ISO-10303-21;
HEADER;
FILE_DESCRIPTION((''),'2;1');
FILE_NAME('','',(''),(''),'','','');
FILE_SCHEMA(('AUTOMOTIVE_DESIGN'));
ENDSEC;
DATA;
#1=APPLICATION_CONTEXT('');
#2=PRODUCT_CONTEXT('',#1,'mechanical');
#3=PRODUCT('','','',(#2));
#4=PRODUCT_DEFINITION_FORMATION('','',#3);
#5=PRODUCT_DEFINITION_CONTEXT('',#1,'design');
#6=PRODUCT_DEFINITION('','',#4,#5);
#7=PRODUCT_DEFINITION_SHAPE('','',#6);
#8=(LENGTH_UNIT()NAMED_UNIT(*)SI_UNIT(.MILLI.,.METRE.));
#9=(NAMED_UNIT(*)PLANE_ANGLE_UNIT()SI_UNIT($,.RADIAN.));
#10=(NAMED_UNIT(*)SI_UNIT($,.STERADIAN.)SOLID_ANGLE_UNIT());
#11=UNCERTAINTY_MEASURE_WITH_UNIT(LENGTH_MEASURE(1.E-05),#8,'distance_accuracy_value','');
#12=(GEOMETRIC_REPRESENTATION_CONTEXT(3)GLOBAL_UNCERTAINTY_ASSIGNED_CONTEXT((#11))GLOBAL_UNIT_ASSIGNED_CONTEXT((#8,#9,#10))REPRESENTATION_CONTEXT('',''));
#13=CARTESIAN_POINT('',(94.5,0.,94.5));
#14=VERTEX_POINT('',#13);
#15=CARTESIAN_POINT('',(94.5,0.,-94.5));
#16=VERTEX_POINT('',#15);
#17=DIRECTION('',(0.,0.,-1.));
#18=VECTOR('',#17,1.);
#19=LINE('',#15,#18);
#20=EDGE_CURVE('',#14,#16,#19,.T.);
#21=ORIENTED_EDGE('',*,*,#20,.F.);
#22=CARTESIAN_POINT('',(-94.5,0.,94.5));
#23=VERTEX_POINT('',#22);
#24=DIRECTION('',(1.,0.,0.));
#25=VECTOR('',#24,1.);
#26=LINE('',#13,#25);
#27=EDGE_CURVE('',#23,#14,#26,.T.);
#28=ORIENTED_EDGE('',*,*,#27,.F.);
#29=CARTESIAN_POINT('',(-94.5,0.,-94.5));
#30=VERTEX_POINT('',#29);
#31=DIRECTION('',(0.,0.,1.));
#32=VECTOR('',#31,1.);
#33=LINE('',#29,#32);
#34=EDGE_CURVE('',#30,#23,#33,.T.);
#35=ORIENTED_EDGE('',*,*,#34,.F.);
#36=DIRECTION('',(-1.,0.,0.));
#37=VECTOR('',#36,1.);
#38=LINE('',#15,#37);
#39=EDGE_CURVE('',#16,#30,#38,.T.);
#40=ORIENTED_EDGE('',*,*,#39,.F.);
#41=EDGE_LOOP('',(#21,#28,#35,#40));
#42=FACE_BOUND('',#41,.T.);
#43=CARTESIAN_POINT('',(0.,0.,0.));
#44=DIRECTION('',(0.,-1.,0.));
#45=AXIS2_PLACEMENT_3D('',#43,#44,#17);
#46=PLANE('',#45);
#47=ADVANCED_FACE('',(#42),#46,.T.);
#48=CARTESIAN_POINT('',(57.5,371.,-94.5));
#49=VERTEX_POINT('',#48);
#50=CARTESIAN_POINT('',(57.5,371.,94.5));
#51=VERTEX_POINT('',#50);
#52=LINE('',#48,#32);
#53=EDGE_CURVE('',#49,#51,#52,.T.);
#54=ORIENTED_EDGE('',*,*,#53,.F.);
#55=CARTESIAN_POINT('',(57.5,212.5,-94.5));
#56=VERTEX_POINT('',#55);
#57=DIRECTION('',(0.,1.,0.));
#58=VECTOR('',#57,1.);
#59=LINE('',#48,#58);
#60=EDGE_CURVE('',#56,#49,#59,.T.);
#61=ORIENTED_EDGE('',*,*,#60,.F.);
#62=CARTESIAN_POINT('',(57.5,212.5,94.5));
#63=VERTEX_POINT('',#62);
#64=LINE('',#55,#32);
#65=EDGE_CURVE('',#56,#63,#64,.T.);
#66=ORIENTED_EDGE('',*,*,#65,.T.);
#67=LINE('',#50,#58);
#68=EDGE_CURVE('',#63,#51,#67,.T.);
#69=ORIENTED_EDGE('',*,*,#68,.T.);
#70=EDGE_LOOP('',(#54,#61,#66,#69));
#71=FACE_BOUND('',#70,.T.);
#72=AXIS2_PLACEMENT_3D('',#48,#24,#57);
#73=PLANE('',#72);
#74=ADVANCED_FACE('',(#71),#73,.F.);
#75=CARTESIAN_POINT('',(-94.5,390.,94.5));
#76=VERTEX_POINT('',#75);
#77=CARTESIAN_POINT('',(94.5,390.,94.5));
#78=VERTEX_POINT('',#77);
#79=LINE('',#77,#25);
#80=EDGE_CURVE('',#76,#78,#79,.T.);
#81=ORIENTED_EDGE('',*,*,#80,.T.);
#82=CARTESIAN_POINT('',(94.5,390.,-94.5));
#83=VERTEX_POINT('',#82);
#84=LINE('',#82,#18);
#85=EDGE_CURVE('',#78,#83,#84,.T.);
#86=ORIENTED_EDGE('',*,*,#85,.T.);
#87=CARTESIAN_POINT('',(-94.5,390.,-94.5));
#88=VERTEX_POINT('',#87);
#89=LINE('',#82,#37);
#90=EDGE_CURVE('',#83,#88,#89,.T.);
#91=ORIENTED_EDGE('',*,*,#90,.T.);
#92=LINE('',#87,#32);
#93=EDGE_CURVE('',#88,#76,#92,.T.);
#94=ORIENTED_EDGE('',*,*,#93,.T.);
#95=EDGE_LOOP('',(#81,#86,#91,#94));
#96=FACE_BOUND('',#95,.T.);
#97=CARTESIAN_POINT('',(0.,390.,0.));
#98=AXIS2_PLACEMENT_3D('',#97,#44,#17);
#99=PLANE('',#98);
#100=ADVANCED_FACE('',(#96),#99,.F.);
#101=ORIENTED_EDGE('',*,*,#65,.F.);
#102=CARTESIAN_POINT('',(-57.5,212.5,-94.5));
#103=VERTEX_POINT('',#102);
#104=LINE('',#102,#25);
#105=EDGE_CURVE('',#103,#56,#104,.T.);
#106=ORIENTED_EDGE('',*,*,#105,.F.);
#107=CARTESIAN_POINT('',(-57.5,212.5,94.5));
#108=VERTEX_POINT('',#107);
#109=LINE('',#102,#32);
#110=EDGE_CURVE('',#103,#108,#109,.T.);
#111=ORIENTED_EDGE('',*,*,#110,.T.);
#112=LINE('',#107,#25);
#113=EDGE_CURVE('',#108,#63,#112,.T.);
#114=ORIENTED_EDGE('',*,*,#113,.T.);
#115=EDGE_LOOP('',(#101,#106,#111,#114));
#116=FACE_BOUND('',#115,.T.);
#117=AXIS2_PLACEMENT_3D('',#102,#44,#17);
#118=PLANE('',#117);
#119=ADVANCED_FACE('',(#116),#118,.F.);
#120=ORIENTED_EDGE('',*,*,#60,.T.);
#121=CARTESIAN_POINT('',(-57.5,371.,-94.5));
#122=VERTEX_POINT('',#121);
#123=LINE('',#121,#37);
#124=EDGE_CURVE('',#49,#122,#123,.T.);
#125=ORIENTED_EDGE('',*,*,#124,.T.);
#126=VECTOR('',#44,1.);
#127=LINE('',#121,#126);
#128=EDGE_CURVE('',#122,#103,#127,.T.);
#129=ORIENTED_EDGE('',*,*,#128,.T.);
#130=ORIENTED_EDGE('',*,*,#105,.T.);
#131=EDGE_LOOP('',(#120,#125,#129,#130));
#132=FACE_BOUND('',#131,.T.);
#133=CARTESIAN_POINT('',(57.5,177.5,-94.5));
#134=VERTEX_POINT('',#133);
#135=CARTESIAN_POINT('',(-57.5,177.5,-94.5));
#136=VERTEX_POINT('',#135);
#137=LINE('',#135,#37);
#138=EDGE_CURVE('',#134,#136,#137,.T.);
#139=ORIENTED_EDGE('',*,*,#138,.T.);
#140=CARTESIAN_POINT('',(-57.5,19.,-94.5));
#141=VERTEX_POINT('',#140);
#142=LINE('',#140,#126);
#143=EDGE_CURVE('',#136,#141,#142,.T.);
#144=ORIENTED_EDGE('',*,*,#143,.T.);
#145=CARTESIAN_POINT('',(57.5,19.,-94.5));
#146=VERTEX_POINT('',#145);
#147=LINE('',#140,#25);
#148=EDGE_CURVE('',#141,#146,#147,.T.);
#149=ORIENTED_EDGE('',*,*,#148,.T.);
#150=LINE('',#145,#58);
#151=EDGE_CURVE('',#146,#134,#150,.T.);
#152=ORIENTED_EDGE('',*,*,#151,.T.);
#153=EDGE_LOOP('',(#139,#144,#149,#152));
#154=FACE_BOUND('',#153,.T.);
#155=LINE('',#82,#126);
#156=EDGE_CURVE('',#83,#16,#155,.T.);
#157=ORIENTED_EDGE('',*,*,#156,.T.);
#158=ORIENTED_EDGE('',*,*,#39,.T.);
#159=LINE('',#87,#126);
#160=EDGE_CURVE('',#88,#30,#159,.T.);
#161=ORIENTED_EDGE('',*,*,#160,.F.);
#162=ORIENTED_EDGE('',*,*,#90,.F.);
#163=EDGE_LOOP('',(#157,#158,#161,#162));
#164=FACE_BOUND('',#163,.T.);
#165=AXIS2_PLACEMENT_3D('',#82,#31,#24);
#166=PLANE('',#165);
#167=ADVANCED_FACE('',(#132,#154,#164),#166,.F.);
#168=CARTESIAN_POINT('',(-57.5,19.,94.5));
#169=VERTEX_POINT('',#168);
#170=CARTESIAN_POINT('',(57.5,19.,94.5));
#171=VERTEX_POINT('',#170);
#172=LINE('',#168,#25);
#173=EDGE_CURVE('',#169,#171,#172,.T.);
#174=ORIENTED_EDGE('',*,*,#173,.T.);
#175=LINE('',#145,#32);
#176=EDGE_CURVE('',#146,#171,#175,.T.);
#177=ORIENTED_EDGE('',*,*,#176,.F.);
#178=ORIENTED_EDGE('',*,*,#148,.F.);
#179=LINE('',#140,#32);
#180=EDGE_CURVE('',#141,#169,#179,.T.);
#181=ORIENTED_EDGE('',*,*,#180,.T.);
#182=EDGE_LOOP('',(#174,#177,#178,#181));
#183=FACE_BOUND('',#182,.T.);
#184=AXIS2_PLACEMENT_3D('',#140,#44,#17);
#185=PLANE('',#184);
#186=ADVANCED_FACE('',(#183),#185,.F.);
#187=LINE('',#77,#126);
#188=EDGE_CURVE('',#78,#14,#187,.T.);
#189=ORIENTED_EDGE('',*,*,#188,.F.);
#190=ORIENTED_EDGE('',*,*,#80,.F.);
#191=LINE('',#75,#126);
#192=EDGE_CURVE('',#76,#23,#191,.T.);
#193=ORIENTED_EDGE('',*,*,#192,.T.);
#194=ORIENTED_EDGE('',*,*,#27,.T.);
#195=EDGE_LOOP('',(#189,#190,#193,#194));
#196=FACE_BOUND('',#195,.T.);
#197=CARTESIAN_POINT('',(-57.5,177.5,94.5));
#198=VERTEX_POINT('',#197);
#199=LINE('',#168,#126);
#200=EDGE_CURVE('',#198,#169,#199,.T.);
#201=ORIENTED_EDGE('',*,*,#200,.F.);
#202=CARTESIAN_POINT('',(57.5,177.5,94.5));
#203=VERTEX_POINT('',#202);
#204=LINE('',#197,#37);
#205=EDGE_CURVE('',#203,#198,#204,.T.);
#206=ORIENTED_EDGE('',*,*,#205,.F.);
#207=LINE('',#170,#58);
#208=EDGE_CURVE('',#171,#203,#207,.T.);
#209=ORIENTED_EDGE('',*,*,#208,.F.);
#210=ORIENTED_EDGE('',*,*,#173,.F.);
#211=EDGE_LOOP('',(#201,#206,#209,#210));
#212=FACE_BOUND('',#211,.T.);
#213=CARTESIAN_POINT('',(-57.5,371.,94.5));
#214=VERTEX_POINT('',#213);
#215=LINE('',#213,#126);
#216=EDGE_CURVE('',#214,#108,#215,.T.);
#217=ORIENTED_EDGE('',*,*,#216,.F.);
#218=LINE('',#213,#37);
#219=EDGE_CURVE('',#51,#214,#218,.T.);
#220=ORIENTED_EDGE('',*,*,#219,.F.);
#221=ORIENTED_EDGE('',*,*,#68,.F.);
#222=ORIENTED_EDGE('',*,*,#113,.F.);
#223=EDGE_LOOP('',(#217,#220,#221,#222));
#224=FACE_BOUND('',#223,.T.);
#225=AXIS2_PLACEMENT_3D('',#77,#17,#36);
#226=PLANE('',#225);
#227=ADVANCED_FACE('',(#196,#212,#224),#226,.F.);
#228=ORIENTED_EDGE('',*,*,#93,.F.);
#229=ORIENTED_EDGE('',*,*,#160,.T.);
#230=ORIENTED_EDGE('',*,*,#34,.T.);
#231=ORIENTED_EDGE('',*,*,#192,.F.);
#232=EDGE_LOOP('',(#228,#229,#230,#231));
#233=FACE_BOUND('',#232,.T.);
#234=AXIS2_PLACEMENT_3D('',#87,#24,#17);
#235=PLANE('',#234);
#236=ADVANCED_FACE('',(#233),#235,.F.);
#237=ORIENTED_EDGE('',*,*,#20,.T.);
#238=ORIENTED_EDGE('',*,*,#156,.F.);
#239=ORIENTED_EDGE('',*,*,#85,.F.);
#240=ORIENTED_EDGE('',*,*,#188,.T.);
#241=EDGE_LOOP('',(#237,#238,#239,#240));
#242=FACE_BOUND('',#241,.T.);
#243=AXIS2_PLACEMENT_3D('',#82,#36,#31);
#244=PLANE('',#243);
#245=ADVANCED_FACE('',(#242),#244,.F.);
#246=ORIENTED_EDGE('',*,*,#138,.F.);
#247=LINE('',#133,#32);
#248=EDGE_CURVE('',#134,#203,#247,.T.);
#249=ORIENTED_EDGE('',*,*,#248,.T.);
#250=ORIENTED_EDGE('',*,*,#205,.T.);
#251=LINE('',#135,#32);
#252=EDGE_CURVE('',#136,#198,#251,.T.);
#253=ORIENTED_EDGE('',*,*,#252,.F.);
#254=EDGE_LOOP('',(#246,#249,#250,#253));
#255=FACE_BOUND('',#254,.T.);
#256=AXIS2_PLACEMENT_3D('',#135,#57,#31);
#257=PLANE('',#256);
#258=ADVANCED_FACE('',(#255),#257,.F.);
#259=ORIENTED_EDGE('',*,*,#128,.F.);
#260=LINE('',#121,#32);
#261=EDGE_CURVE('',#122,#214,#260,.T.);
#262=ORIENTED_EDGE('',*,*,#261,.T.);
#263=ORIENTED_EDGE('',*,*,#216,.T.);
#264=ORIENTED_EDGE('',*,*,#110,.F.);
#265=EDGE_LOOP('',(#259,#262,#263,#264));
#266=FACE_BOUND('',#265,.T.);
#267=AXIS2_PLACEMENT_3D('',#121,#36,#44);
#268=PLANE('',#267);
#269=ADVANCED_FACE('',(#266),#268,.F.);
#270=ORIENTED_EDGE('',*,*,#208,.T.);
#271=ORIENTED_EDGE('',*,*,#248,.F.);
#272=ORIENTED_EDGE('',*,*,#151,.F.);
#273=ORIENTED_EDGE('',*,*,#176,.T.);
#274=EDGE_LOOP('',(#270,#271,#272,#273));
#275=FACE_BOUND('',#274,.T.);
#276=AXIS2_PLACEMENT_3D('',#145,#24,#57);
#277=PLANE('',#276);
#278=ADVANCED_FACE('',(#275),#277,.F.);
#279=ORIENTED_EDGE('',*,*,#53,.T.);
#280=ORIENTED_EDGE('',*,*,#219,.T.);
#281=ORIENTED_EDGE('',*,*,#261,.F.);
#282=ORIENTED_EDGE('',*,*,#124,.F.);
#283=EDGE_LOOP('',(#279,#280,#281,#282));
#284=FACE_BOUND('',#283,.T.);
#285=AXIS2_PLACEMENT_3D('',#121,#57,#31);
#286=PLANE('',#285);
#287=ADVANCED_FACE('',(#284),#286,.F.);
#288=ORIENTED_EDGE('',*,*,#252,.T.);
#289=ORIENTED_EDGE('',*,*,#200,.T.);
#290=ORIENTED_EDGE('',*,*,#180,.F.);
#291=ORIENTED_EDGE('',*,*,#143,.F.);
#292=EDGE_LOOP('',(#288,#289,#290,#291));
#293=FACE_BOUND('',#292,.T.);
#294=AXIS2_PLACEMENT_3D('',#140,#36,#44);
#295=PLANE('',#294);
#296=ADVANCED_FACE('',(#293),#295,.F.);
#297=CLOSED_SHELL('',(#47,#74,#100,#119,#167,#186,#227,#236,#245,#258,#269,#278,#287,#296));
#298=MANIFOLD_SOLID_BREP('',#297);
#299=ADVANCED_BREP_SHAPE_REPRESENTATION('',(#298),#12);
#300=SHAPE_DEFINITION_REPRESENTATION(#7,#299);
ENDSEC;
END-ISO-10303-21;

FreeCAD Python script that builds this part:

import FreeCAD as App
import Part
import Sketcher

V = App.Vector
Q = App.Units.Quantity


def add_polygon(sketch, points):
    """Adds a closed chain of lines whose ends are joined by coincident constraints."""
    first, n = sketch.GeometryCount, len(points)
    for a, b in zip(points, points[1:] + points[:1]):
        sketch.addGeometry(Part.LineSegment(App.Vector(*a, 0), App.Vector(*b, 0)), False)
    for i in range(n):
        sketch.addConstraint(Sketcher.Constraint("Coincident", first + i, 2, first + (i + 1) % n, 1))

doc = App.newDocument("Part")
body = doc.addObject("PartDesign::Body", "Body")

# Sketch on XZ plane
sketch1 = doc.addObject("Sketcher::SketchObject", "Sketch")
body.addObject(sketch1)
sketch1.AttachmentSupport = (doc.XZ_Plane, [""])
sketch1.MapMode = "FlatFace"
add_polygon(sketch1, [(-94, -94), (-94, 94), (94, 94), (94, -94)])  # lines 0-3
sketch1.addConstraint([
    Sketcher.Constraint("Vertical", 0),
    Sketcher.Constraint("Horizontal", 1),
    Sketcher.Constraint("Vertical", 2),
    Sketcher.Constraint("Horizontal", 3),
    Sketcher.Constraint("Symmetric", 0, 2, 2, 2, -1, 1),
    Sketcher.Constraint("Equal", 3, 0),
    Sketcher.Constraint("DistanceX", 1, 1, 1, 2, Q("189 mm")),
])
pad1 = doc.addObject("PartDesign::Pad", "Pad")
body.addObject(pad1)
pad1.Profile = sketch1
pad1.Length = 390
pad1.Reversed = True

# Sketch on XY plane
sketch2 = doc.addObject("Sketcher::SketchObject", "Sketch001")
body.addObject(sketch2)
sketch2.AttachmentSupport = (doc.XY_Plane, [""])
sketch2.MapMode = "FlatFace"
sketch2.AttachmentOffset = App.Placement(V(0, 0, 94.5), App.Rotation())
add_polygon(sketch2, [(-58, 371), (-58, 212), (58, 212), (58, 371)])  # lines 0-3
add_polygon(sketch2, [(-58, 178), (-58, 19), (58, 19), (58, 178)])  # lines 4-7
sketch2.addConstraint([
    Sketcher.Constraint("Vertical", 0),
    Sketcher.Constraint("Horizontal", 1),
    Sketcher.Constraint("Vertical", 2),
    Sketcher.Constraint("Horizontal", 3),
    Sketcher.Constraint("Vertical", 4),
    Sketcher.Constraint("Horizontal", 5),
    Sketcher.Constraint("Vertical", 6),
    Sketcher.Constraint("Horizontal", 7),
    Sketcher.Constraint("Vertical", 3, 2, 4, 2),
    Sketcher.Constraint("Vertical", 2, 2, 5, 2),
    Sketcher.Constraint("Equal", 2, 4),
    Sketcher.Constraint("DistanceX", 1, 1, 1, 2, Q("115 mm")),
    Sketcher.Constraint("DistanceY", 0, 2, 0, 1, Q("158.5 mm")),
    Sketcher.Constraint("DistanceY", -1, 1, 2, 2, Q("371 mm")),
    Sketcher.Constraint("DistanceY", -1, 1, 4, 2, Q("19 mm")),
    Sketcher.Constraint("DistanceX", 0, 2, -1, 1, Q("57.5 mm")),
])
pocket1 = doc.addObject("PartDesign::Pocket", "Pocket")
body.addObject(pocket1)
pocket1.Profile = sketch2
pocket1.Type = "ThroughAll"

doc.recompute()
